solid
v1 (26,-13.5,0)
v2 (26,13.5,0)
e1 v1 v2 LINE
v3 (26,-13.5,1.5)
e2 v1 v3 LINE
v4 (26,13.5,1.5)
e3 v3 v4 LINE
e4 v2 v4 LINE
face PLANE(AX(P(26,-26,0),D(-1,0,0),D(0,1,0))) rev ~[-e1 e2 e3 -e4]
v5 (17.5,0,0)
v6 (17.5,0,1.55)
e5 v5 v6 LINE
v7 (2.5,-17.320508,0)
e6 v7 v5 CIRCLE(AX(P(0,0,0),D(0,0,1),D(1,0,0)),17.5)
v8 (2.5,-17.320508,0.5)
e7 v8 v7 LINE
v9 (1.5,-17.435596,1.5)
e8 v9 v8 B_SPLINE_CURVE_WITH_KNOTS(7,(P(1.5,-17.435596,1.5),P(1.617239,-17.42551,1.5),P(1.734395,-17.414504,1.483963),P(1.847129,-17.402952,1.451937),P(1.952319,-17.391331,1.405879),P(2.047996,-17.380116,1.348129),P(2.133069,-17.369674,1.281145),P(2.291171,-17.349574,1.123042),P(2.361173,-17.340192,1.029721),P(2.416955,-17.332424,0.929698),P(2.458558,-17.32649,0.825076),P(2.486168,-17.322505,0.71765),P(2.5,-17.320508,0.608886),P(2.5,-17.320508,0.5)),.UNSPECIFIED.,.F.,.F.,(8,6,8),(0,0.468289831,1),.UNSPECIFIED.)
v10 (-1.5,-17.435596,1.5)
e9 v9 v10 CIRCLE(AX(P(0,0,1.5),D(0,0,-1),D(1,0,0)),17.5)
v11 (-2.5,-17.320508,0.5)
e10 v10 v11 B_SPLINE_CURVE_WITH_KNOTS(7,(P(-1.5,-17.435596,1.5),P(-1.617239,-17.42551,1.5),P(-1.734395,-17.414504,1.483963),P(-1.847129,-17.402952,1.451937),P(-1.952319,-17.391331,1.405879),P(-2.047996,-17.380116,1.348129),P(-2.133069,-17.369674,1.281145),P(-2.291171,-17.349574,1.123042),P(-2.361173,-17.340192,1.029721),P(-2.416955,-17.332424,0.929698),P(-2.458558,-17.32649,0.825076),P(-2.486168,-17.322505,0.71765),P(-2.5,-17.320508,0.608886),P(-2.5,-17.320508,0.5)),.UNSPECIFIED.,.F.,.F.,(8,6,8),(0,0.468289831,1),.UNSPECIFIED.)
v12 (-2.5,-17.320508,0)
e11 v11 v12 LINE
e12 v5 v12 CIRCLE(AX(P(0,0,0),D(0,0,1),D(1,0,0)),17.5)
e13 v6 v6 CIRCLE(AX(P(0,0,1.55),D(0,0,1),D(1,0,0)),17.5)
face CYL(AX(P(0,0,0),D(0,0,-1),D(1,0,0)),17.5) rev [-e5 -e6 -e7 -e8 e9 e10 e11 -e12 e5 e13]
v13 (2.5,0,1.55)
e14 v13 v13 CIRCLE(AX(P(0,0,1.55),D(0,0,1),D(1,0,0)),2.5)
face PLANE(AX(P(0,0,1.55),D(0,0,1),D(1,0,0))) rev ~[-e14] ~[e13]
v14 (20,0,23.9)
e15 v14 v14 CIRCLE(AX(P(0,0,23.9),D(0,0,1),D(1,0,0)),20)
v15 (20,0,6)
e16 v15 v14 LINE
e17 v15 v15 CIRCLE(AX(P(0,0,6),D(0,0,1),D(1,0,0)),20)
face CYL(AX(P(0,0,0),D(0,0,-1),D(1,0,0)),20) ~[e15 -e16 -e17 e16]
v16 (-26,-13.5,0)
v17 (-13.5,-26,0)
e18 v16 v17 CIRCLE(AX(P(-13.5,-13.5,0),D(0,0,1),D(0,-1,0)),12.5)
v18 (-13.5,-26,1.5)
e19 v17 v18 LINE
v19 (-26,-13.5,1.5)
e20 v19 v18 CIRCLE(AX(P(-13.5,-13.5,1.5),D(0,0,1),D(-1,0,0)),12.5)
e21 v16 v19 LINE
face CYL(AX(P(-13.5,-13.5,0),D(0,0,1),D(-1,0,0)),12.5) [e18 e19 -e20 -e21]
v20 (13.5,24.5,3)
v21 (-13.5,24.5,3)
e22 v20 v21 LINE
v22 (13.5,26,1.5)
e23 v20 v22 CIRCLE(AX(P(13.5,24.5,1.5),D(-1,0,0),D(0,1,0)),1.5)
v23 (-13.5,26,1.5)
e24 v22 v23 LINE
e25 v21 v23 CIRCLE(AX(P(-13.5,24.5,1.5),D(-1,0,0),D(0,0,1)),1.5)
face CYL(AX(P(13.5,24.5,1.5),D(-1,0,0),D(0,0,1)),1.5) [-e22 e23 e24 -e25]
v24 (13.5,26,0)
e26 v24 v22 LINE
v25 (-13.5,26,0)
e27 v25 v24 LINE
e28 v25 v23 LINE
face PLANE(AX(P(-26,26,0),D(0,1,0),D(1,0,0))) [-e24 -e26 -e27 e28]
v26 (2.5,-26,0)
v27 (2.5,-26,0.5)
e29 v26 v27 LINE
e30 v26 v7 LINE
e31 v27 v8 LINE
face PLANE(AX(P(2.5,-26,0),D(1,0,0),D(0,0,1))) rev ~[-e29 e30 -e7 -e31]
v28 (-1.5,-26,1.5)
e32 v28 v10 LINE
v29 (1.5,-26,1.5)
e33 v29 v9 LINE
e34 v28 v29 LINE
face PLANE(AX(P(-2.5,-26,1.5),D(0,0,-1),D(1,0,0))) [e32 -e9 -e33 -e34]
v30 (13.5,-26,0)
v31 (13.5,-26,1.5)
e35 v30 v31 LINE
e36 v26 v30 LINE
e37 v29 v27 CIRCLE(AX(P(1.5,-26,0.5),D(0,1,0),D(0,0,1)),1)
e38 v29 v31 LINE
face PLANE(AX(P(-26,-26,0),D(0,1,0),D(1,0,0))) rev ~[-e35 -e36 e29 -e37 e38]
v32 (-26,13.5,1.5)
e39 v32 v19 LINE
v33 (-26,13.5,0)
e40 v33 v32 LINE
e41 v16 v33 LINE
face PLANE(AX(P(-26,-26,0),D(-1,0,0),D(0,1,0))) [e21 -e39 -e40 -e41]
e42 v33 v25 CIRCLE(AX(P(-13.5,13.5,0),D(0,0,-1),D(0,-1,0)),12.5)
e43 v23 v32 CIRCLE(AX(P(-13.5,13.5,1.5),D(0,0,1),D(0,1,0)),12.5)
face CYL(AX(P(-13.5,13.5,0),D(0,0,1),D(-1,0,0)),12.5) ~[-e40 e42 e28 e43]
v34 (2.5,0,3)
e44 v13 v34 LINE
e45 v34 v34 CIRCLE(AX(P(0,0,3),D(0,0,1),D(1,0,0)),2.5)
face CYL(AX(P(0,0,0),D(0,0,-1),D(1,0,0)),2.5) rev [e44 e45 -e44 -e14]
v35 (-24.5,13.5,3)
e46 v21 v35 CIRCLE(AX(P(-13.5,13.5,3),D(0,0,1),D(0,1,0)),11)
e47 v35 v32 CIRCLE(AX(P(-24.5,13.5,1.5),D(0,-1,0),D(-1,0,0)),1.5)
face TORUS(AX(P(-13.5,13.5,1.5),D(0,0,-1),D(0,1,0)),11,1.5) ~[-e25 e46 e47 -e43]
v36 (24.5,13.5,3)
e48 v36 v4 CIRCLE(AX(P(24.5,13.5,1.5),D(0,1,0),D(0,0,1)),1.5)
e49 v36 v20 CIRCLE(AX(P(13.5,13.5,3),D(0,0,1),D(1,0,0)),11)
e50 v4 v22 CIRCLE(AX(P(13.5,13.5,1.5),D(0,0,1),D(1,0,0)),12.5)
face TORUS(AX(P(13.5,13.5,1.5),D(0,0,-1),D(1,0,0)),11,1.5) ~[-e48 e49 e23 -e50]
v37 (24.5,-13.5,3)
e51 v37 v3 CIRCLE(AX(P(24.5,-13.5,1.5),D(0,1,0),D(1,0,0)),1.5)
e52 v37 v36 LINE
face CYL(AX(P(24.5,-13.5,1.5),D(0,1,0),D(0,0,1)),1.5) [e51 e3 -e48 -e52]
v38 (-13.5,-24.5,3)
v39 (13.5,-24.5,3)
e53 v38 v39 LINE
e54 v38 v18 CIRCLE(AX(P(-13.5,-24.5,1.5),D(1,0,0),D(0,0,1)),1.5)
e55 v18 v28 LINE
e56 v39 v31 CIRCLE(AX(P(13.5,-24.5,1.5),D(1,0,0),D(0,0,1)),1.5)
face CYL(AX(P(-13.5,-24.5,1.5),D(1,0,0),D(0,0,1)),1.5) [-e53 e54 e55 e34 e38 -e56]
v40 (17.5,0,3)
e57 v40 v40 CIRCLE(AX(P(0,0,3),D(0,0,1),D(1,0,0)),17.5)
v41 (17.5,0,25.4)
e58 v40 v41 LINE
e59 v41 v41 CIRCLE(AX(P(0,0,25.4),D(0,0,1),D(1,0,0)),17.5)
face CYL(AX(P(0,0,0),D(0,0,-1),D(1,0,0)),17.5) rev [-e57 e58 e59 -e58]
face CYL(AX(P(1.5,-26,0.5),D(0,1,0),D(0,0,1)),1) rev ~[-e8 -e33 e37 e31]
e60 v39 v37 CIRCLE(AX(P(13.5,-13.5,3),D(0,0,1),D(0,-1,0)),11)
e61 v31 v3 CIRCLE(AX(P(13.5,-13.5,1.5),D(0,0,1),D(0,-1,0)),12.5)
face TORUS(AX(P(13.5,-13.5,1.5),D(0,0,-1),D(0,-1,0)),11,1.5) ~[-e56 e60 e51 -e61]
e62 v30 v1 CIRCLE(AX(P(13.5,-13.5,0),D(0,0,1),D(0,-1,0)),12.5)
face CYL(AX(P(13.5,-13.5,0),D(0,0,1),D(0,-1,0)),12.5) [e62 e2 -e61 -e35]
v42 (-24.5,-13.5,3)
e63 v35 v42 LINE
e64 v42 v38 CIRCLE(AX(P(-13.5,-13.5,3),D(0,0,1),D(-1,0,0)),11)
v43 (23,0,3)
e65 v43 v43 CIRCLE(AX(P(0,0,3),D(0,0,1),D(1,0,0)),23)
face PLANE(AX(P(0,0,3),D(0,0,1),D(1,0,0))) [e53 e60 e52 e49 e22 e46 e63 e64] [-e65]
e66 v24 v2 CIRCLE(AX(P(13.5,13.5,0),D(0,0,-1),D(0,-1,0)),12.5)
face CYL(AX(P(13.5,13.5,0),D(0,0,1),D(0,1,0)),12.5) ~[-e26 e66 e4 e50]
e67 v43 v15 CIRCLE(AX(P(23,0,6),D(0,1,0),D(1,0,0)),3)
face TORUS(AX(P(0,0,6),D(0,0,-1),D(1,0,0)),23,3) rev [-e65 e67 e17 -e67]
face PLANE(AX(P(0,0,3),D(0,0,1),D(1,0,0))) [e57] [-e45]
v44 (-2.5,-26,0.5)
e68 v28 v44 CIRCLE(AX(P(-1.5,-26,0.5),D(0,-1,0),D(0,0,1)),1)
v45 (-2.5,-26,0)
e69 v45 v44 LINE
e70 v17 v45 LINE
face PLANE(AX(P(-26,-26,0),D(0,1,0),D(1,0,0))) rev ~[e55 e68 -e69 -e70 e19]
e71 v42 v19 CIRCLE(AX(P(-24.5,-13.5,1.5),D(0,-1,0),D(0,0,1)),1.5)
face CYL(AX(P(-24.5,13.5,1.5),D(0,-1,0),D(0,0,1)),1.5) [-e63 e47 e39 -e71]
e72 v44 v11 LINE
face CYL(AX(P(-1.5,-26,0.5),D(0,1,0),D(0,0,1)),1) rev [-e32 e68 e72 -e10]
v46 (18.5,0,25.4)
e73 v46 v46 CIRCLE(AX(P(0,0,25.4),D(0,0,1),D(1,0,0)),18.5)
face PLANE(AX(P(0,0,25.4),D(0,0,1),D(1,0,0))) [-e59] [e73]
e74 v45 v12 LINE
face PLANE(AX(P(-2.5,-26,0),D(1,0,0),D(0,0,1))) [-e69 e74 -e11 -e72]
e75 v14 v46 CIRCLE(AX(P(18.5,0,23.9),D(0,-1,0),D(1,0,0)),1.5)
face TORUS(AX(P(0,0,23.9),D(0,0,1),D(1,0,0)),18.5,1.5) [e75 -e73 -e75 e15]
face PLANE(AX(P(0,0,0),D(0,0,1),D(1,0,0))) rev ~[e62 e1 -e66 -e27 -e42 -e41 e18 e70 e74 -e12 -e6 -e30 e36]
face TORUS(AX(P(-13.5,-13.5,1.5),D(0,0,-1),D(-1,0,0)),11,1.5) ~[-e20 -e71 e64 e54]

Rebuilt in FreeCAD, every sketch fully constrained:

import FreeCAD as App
import Part
import Sketcher
Q = App.Units.Quantity


def edges_at(feature, points):
    """Names of the edges that pass closest to the given points."""
    edges = feature.Shape.Edges
    near = lambda p: min(range(len(edges)), key=lambda i: edges[i].distToShape(Part.Vertex(*p))[0])
    return sorted({f"Edge{near(p) + 1}" for p in points})

doc = App.newDocument("Part")
params = doc.addObject("Spreadsheet::Sheet", "Params")
for row, (alias, value) in enumerate([
    ("sketch1_diameter", "40 mm"),
    ("sketch1_width", "52 mm"),
    ("pad1_length", "3 mm"),
    ("sketch2_diameter", "35 mm"),
    ("sketch2_diameter2", "5 mm"),
    ("pad2_length", "3 mm"),
    ("sketch3_diameter", "40 mm"),
    ("sketch3_diameter2", "35 mm"),
    ("pad3_length", "25.4 mm"),
    ("sketch4_diameter", "35 mm"),
    ("sketch4_diameter2", "5 mm"),
    ("pocket1_length", "1.55 mm"),
    ("fillet_radius", "12.5 mm"),
    ("fillet2_radius", "1.5 mm"),
    ("fillet3_radius", "3 mm"),
    ("sketch5_width", "5 mm"),
    ("sketch5_height", "1.5 mm"),
    ("pocket2_length", "25.4 mm"),
    ("fillet4_radius", "1 mm"),
], start=1):
    params.set(f"A{row}", alias)
    params.set(f"B{row}", "=" + value)
    params.setAlias(f"B{row}", alias)

body = doc.addObject("PartDesign::Body", "Body")

# Sketch on XY plane
sketch1 = body.newObject("Sketcher::SketchObject", "Sketch")
sketch1.AttachmentSupport = (doc.getObject("XY_Plane"), [""])
sketch1.MapMode = "FlatFace"
sketch1.addGeometry([
    Part.LineSegment(App.Vector(-26, 26, 0), App.Vector(-26, -26, 0)),  # 0
    Part.LineSegment(App.Vector(-26, -26, 0), App.Vector(26, -26, 0)),  # 1
    Part.LineSegment(App.Vector(26, -26, 0), App.Vector(26, 26, 0)),  # 2
    Part.LineSegment(App.Vector(26, 26, 0), App.Vector(-26, 26, 0)),  # 3
    Part.Circle(App.Vector(0, 0, 0), App.Vector(0, 0, 1), 20),  # 4
], False)
sketch1.addConstraint([
    Sketcher.Constraint("Coincident", 0, 2, 1, 1),
    Sketcher.Constraint("Coincident", 1, 2, 2, 1),
    Sketcher.Constraint("Coincident", 2, 2, 3, 1),
    Sketcher.Constraint("Coincident", 3, 2, 0, 1),
    Sketcher.Constraint("Vertical", 0),
    Sketcher.Constraint("Horizontal", 1),
    Sketcher.Constraint("Vertical", 2),
    Sketcher.Constraint("Horizontal", 3),
    Sketcher.Constraint("Coincident", 4, 3, -1, 1),
    Sketcher.Constraint("Symmetric", 0, 2, 2, 2, -1, 1),
    Sketcher.Constraint("Equal", 3, 0),
    Sketcher.Constraint("Diameter", 4, Q("40 mm")),
    Sketcher.Constraint("DistanceX", 1, 1, 1, 2, Q("52 mm")),
])
sketch1.setExpression("Constraints[11]", "Params.sketch1_diameter")
sketch1.setExpression("Constraints[12]", "Params.sketch1_width")
pad1 = body.newObject("PartDesign::Pad", "Pad")
pad1.Profile = sketch1
pad1.setExpression("Length", "Params.pad1_length")
body2 = doc.addObject("PartDesign::Body", "Body001")

# Sketch on XY plane
sketch2 = body2.newObject("Sketcher::SketchObject", "Sketch001")
sketch2.AttachmentSupport = (doc.getObject("XY_Plane001"), [""])
sketch2.MapMode = "FlatFace"
sketch2.addGeometry([
    Part.Circle(App.Vector(0, 0, 0), App.Vector(0, 0, 1), 17.5),
    Part.Circle(App.Vector(0, 0, 0), App.Vector(0, 0, 1), 2.5),
], False)
sketch2.addConstraint([
    Sketcher.Constraint("Coincident", 0, 3, -1, 1),
    Sketcher.Constraint("Coincident", 1, 3, -1, 1),
    Sketcher.Constraint("Diameter", 0, Q("35 mm")),
    Sketcher.Constraint("Diameter", 1, Q("5 mm")),
])
sketch2.setExpression("Constraints[2]", "Params.sketch2_diameter")
sketch2.setExpression("Constraints[3]", "Params.sketch2_diameter2")
pad2 = body2.newObject("PartDesign::Pad", "Pad001")
pad2.Profile = sketch2
pad2.setExpression("Length", "Params.pad2_length")
body.AllowCompound = True
doc.recompute()

boolean = body.newObject("PartDesign::Boolean", "Boolean")
boolean.Type = "Fuse"
boolean.addObjects([body2])

# Sketch on XY plane
sketch3 = body.newObject("Sketcher::SketchObject", "Sketch002")
sketch3.AttachmentSupport = (doc.getObject("XY_Plane"), [""])
sketch3.MapMode = "FlatFace"
sketch3.addGeometry([
    Part.Circle(App.Vector(0, 0, 0), App.Vector(0, 0, 1), 20),
    Part.Circle(App.Vector(0, 0, 0), App.Vector(0, 0, 1), 17.5),
], False)
sketch3.addConstraint([
    Sketcher.Constraint("Coincident", 0, 3, -1, 1),
    Sketcher.Constraint("Coincident", 1, 3, -1, 1),
    Sketcher.Constraint("Diameter", 0, Q("40 mm")),
    Sketcher.Constraint("Diameter", 1, Q("35 mm")),
])
sketch3.setExpression("Constraints[2]", "Params.sketch3_diameter")
sketch3.setExpression("Constraints[3]", "Params.sketch3_diameter2")
pad3 = body.newObject("PartDesign::Pad", "Pad002")
pad3.Profile = sketch3
pad3.setExpression("Length", "Params.pad3_length")

# Sketch on XY plane
sketch4 = body.newObject("Sketcher::SketchObject", "Sketch003")
sketch4.AttachmentSupport = (doc.getObject("XY_Plane"), [""])
sketch4.MapMode = "FlatFace"
sketch4.addGeometry([
    Part.Circle(App.Vector(0, 0, 0), App.Vector(0, 0, 1), 17.5),
    Part.Circle(App.Vector(0, 0, 0), App.Vector(0, 0, 1), 2.5),
], False)
sketch4.addConstraint([
    Sketcher.Constraint("Coincident", 0, 3, -1, 1),
    Sketcher.Constraint("Coincident", 1, 3, -1, 1),
    Sketcher.Constraint("Diameter", 0, Q("35 mm")),
    Sketcher.Constraint("Diameter", 1, Q("5 mm")),
])
sketch4.setExpression("Constraints[2]", "Params.sketch4_diameter")
sketch4.setExpression("Constraints[3]", "Params.sketch4_diameter2")
pocket1 = body.newObject("PartDesign::Pocket", "Pocket")
pocket1.Profile = sketch4
pocket1.setExpression("Length", "Params.pocket1_length")
pocket1.Reversed = True
doc.recompute()

fillet = body.newObject("PartDesign::Fillet", "Fillet")
fillet.Base = (pocket1, edges_at(pocket1, [
    (-26, 26, 1.5),
    (26, 26, 1.5),
    (26, -26, 1.5),
    (-26, -26, 1.5),
]))
fillet.setExpression("Radius", "Params.fillet_radius")
doc.recompute()

fillet2 = body.newObject("PartDesign::Fillet", "Fillet001")
fillet2.Base = (fillet, edges_at(fillet, [(-20, 0, 25.4), (0, -26, 3)]))
fillet2.setExpression("Radius", "Params.fillet2_radius")
doc.recompute()

fillet3 = body.newObject("PartDesign::Fillet", "Fillet002")
fillet3.Base = (fillet2, edges_at(fillet2, [(-20, 0, 3)]))
fillet3.setExpression("Radius", "Params.fillet3_radius")

# Sketch on XZ plane
sketch5 = body.newObject("Sketcher::SketchObject", "Sketch004")
sketch5.AttachmentSupport = (doc.getObject("XZ_Plane"), [""])
sketch5.MapMode = "FlatFace"
sketch5.AttachmentOffset = App.Placement(App.Vector(0, 0, 26), App.Rotation())
sketch5.addGeometry([
    Part.LineSegment(App.Vector(-2.5, 1.5, 0), App.Vector(-2.5, 0, 0)),
    Part.LineSegment(App.Vector(-2.5, 0, 0), App.Vector(2.5, 0, 0)),
    Part.LineSegment(App.Vector(2.5, 0, 0), App.Vector(2.5, 1.5, 0)),
    Part.LineSegment(App.Vector(2.5, 1.5, 0), App.Vector(-2.5, 1.5, 0)),
], False)
sketch5.addConstraint([
    Sketcher.Constraint("Coincident", 0, 2, 1, 1),
    Sketcher.Constraint("Coincident", 1, 2, 2, 1),
    Sketcher.Constraint("Coincident", 2, 2, 3, 1),
    Sketcher.Constraint("Coincident", 3, 2, 0, 1),
    Sketcher.Constraint("Vertical", 0),
    Sketcher.Constraint("Horizontal", 1),
    Sketcher.Constraint("Vertical", 2),
    Sketcher.Constraint("Horizontal", 3),
    Sketcher.Constraint("Symmetric", 0, 2, 1, 2, -1, 1),
    Sketcher.Constraint("DistanceX", 1, 1, 1, 2, Q("5 mm")),
    Sketcher.Constraint("DistanceY", 0, 2, 0, 1, Q("1.5 mm")),
])
sketch5.setExpression("Constraints[9]", "Params.sketch5_width")
sketch5.setExpression("Constraints[10]", "Params.sketch5_height")
pocket2 = body.newObject("PartDesign::Pocket", "Pocket001")
pocket2.Profile = sketch5
pocket2.setExpression("Length", "Params.pocket2_length")
doc.recompute()

fillet4 = body.newObject("PartDesign::Fillet", "Fillet003")
fillet4.Base = (pocket2, edges_at(pocket2, [(-2.5, -21.66, 1.5), (2.5, -21.66, 1.5)]))
fillet4.setExpression("Radius", "Params.fillet4_radius")

doc.recompute()
